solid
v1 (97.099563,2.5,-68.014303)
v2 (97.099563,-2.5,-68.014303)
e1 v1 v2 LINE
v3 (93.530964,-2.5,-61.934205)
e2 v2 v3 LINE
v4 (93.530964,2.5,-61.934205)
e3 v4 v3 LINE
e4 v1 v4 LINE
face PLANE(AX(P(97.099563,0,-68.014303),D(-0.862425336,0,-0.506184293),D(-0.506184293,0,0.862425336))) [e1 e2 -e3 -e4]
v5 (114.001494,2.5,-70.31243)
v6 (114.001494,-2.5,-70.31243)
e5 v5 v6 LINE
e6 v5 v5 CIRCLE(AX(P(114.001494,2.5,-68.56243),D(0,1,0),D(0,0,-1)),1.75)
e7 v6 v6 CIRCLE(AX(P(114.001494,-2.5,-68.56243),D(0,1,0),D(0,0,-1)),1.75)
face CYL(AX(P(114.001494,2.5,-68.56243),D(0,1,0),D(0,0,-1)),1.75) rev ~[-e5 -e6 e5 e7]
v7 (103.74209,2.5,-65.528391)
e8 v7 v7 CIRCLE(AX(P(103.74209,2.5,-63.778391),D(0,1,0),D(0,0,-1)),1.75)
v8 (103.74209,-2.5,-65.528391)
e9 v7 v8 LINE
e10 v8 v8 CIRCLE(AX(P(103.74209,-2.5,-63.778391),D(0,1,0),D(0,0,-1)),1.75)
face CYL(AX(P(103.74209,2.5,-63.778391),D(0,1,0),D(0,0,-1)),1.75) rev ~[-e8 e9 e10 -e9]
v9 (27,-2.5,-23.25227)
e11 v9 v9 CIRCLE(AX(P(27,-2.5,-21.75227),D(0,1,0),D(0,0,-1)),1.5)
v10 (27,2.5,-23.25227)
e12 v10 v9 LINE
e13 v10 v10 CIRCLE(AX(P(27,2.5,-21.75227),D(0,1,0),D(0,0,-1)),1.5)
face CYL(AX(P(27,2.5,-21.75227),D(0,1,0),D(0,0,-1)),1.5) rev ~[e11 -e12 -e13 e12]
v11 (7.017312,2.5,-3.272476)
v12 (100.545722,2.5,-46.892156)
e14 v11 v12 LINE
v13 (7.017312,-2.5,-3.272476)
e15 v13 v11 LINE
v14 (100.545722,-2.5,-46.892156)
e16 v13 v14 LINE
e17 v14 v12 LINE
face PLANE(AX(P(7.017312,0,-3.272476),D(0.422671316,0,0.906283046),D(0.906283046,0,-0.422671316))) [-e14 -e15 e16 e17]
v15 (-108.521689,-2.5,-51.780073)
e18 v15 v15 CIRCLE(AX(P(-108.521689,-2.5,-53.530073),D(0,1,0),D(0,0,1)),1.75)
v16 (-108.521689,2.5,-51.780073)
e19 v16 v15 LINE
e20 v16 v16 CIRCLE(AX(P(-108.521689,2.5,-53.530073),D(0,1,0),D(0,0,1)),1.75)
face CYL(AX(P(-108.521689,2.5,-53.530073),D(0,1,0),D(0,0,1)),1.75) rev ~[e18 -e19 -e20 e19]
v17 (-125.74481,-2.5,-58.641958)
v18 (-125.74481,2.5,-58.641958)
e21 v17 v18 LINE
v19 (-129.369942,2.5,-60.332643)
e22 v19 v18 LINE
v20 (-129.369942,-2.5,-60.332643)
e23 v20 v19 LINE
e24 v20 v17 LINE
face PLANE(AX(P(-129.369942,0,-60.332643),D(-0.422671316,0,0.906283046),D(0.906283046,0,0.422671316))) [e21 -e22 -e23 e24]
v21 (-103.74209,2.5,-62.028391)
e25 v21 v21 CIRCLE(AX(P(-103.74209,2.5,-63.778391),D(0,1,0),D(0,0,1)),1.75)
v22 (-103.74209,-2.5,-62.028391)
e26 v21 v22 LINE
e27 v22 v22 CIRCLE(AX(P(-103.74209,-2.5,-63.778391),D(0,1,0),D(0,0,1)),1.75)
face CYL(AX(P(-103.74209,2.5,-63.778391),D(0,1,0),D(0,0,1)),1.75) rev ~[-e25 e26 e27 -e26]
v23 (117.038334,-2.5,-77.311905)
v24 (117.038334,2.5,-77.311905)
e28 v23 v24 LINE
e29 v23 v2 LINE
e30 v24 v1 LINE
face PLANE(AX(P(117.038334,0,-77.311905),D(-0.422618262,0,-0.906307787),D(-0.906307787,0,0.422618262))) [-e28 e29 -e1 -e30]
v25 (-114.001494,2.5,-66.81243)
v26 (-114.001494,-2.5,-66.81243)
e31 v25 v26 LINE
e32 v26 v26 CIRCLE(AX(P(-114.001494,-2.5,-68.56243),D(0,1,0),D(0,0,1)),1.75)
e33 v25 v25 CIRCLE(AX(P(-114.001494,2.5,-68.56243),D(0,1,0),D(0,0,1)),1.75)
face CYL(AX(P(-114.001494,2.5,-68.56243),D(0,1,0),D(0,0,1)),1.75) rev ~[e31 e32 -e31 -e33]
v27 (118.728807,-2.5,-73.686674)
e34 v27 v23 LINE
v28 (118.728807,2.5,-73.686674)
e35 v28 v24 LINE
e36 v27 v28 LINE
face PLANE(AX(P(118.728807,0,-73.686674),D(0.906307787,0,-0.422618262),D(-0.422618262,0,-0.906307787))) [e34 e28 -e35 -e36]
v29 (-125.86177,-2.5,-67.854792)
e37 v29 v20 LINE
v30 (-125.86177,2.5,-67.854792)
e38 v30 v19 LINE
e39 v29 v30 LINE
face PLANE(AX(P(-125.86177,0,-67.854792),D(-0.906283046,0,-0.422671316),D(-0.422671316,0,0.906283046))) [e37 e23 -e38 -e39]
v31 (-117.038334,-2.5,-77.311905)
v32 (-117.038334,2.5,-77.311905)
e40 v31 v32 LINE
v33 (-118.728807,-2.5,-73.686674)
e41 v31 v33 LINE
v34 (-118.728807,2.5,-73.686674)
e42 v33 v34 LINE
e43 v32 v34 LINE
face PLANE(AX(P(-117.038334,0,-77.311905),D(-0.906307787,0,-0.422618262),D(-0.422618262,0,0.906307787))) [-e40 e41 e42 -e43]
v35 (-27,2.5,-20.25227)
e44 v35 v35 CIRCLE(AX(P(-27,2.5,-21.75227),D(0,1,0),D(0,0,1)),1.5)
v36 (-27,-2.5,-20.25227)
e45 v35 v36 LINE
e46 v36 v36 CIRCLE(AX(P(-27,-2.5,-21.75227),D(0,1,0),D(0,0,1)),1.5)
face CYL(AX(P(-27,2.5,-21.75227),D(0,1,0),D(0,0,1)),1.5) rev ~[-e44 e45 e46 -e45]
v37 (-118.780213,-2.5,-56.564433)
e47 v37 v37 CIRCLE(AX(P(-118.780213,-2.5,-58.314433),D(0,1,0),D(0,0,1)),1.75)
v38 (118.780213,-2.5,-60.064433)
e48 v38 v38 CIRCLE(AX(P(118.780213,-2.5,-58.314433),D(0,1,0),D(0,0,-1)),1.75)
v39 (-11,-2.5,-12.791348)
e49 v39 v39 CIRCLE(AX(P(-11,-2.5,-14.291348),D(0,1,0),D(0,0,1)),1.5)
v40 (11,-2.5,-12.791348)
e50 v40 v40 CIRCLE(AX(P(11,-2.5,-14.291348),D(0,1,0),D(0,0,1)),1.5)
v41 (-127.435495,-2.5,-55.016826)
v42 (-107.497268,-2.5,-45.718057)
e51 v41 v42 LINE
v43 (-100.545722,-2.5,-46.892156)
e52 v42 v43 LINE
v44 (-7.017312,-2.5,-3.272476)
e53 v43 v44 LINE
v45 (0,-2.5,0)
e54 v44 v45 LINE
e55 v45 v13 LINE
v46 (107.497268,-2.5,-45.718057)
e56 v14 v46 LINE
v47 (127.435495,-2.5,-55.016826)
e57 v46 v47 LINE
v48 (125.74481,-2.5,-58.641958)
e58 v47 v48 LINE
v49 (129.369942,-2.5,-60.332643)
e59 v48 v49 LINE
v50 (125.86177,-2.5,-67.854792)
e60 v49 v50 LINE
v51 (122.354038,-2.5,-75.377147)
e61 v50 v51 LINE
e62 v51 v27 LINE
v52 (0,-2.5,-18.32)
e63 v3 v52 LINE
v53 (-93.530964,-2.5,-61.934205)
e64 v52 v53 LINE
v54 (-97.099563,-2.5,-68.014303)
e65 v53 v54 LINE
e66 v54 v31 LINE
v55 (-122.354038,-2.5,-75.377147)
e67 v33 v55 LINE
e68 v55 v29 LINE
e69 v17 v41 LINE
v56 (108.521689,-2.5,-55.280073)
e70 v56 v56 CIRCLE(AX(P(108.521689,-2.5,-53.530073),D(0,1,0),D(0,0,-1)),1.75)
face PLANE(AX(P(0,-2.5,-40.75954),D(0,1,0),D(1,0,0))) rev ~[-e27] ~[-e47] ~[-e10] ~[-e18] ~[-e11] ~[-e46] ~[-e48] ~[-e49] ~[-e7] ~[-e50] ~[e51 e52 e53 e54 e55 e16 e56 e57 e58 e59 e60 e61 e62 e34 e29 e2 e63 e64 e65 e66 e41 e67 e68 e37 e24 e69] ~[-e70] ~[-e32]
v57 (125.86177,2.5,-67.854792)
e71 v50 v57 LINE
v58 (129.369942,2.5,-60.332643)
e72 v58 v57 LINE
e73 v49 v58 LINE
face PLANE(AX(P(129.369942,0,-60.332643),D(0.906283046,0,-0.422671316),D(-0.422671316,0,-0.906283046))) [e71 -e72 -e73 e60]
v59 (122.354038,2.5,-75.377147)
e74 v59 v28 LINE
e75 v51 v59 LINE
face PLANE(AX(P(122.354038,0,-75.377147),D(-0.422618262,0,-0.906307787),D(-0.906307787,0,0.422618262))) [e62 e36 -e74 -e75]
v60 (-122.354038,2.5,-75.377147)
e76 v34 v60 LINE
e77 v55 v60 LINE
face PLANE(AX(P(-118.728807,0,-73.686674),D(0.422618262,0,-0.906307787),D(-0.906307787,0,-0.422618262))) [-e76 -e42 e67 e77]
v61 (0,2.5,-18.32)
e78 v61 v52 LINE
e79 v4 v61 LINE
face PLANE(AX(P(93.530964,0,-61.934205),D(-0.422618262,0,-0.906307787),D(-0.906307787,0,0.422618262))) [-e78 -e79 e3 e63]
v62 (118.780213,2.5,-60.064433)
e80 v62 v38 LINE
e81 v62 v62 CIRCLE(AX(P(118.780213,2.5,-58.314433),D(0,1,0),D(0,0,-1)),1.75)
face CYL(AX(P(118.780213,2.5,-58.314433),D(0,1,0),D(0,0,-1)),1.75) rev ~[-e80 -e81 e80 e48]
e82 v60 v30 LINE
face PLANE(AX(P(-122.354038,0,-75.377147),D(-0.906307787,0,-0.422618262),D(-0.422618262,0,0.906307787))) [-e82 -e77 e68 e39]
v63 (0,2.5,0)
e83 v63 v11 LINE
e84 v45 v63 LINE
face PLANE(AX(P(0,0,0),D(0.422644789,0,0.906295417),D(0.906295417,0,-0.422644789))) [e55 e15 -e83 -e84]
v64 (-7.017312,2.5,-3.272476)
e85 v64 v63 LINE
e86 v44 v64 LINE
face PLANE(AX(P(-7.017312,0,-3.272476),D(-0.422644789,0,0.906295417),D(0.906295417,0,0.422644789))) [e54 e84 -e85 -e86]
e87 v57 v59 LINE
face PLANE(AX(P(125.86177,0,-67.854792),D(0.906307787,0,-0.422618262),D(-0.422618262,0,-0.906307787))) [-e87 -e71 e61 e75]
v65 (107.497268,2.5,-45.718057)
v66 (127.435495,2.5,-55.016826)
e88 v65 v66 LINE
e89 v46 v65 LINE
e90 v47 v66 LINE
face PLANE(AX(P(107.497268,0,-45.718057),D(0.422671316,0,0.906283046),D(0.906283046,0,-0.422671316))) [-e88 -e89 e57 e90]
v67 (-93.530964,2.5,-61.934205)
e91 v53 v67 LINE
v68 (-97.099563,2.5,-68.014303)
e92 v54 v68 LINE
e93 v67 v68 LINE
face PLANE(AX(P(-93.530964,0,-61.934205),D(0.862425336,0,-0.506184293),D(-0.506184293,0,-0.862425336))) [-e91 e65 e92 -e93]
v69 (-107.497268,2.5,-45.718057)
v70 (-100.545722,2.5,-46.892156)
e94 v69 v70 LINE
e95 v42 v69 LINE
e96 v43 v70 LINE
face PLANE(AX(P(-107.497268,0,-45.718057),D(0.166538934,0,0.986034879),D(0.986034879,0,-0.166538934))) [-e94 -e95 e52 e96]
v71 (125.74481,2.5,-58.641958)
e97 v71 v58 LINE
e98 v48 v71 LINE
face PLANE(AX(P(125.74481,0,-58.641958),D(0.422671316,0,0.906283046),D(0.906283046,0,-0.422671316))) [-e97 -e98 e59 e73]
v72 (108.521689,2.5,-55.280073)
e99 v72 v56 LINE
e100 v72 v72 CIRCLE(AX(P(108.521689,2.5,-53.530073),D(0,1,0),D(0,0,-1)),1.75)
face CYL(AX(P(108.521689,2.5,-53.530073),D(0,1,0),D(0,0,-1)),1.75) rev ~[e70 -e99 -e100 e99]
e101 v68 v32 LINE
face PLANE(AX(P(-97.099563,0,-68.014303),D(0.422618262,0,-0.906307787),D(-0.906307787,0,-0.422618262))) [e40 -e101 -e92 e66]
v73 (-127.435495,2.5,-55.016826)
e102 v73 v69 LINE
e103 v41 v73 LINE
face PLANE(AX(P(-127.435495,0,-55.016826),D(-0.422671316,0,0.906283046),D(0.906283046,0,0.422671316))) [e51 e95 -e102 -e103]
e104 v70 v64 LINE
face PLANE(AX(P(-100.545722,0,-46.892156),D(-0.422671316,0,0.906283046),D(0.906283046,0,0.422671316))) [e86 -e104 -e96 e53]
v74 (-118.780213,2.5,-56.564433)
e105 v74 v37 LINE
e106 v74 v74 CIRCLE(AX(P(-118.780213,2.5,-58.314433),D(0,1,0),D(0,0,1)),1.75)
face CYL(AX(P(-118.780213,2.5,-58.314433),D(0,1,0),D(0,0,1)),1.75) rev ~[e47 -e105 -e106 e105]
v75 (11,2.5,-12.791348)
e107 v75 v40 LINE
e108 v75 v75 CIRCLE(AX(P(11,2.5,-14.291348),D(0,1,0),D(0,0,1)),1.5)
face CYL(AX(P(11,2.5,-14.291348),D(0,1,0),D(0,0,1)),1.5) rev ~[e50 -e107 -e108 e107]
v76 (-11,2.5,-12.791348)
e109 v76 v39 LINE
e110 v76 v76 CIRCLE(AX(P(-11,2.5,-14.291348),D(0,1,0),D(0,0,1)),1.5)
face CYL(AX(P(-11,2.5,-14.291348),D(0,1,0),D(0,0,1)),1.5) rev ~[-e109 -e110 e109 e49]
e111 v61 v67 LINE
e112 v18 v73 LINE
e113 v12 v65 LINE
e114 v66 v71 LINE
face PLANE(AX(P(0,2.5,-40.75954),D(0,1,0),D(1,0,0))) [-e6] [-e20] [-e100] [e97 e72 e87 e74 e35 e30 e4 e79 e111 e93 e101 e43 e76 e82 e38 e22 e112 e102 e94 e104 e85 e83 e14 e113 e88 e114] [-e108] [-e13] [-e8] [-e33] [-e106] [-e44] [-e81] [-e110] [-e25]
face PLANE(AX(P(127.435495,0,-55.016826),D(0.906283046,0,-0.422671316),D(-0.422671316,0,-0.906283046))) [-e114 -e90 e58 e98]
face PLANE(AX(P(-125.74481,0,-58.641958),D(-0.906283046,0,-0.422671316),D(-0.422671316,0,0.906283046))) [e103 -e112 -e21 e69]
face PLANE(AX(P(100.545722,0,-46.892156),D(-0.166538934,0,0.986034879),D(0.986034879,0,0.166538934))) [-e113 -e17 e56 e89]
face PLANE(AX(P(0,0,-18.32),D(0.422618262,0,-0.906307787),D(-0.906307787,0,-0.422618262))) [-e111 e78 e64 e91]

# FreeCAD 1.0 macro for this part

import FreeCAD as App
import Part
import Sketcher
from FreeCAD import Vector
Q = App.Units.Quantity

doc = App.newDocument("Part")
body = doc.addObject("PartDesign::Body", "Body")

# Sketch on XZ plane
sketch1 = body.newObject("Sketcher::SketchObject", "Sketch")
sketch1.AttachmentSupport = (doc.getObject("XZ_Plane"), [""])
sketch1.MapMode = "FlatFace"
sketch1.addGeometry(Part.LineSegment(Vector(0, -18.3, 0), Vector(-93.5, -61.9, 0)), False)
sketch1.addGeometry(Part.LineSegment(Vector(-93.5, -61.9, 0), Vector(-97.1, -68, 0)), False)
sketch1.addGeometry(Part.LineSegment(Vector(-97.1, -68, 0), Vector(-117, -77.3, 0)), False)
sketch1.addGeometry(Part.LineSegment(Vector(-117, -77.3, 0), Vector(-118.7, -73.7, 0)), False)
sketch1.addGeometry(Part.LineSegment(Vector(-118.7, -73.7, 0), Vector(-122.4, -75.4, 0)), False)
sketch1.addGeometry(Part.LineSegment(Vector(-122.4, -75.4, 0), Vector(-125.9, -67.9, 0)), False)
sketch1.addGeometry(Part.LineSegment(Vector(-125.9, -67.9, 0), Vector(-129.4, -60.3, 0)), False)
sketch1.addGeometry(Part.LineSegment(Vector(-129.4, -60.3, 0), Vector(-125.7, -58.6, 0)), False)
sketch1.addGeometry(Part.LineSegment(Vector(-125.7, -58.6, 0), Vector(-127.4, -55, 0)), False)
sketch1.addGeometry(Part.LineSegment(Vector(-127.4, -55, 0), Vector(-107.5, -45.7, 0)), False)
sketch1.addGeometry(Part.LineSegment(Vector(-107.5, -45.7, 0), Vector(-100.5, -46.9, 0)), False)
sketch1.addGeometry(Part.LineSegment(Vector(-100.5, -46.9, 0), Vector(-7, -3.3, 0)), False)
sketch1.addGeometry(Part.LineSegment(Vector(-7, -3.3, 0), Vector(0, 0, 0)), False)
sketch1.addGeometry(Part.LineSegment(Vector(0, 0, 0), Vector(7, -3.3, 0)), False)
sketch1.addGeometry(Part.LineSegment(Vector(7, -3.3, 0), Vector(100.5, -46.9, 0)), False)
sketch1.addGeometry(Part.LineSegment(Vector(100.5, -46.9, 0), Vector(107.5, -45.7, 0)), False)
sketch1.addGeometry(Part.LineSegment(Vector(107.5, -45.7, 0), Vector(127.4, -55, 0)), False)
sketch1.addGeometry(Part.LineSegment(Vector(127.4, -55, 0), Vector(125.7, -58.6, 0)), False)
sketch1.addGeometry(Part.LineSegment(Vector(125.7, -58.6, 0), Vector(129.4, -60.3, 0)), False)
sketch1.addGeometry(Part.LineSegment(Vector(129.4, -60.3, 0), Vector(125.9, -67.9, 0)), False)
sketch1.addGeometry(Part.LineSegment(Vector(125.9, -67.9, 0), Vector(122.4, -75.4, 0)), False)
sketch1.addGeometry(Part.LineSegment(Vector(122.4, -75.4, 0), Vector(118.7, -73.7, 0)), False)
sketch1.addGeometry(Part.LineSegment(Vector(118.7, -73.7, 0), Vector(117, -77.3, 0)), False)
sketch1.addGeometry(Part.LineSegment(Vector(117, -77.3, 0), Vector(97.1, -68, 0)), False)
sketch1.addGeometry(Part.LineSegment(Vector(97.1, -68, 0), Vector(93.5, -61.9, 0)), False)
sketch1.addGeometry(Part.LineSegment(Vector(93.5, -61.9, 0), Vector(0, -18.3, 0)), False)
sketch1.addConstraint(Sketcher.Constraint("Coincident", 0, 2, 1, 1))
sketch1.addConstraint(Sketcher.Constraint("Coincident", 1, 2, 2, 1))
sketch1.addConstraint(Sketcher.Constraint("Coincident", 2, 2, 3, 1))
sketch1.addConstraint(Sketcher.Constraint("Coincident", 3, 2, 4, 1))
sketch1.addConstraint(Sketcher.Constraint("Coincident", 4, 2, 5, 1))
sketch1.addConstraint(Sketcher.Constraint("Coincident", 5, 2, 6, 1))
sketch1.addConstraint(Sketcher.Constraint("Coincident", 6, 2, 7, 1))
sketch1.addConstraint(Sketcher.Constraint("Coincident", 7, 2, 8, 1))
sketch1.addConstraint(Sketcher.Constraint("Coincident", 8, 2, 9, 1))
sketch1.addConstraint(Sketcher.Constraint("Coincident", 9, 2, 10, 1))
sketch1.addConstraint(Sketcher.Constraint("Coincident", 10, 2, 11, 1))
sketch1.addConstraint(Sketcher.Constraint("Coincident", 11, 2, 12, 1))
sketch1.addConstraint(Sketcher.Constraint("Coincident", 12, 2, 13, 1))
sketch1.addConstraint(Sketcher.Constraint("Coincident", 13, 2, 14, 1))
sketch1.addConstraint(Sketcher.Constraint("Coincident", 14, 2, 15, 1))
sketch1.addConstraint(Sketcher.Constraint("Coincident", 15, 2, 16, 1))
sketch1.addConstraint(Sketcher.Constraint("Coincident", 16, 2, 17, 1))
sketch1.addConstraint(Sketcher.Constraint("Coincident", 17, 2, 18, 1))
sketch1.addConstraint(Sketcher.Constraint("Coincident", 18, 2, 19, 1))
sketch1.addConstraint(Sketcher.Constraint("Coincident", 19, 2, 20, 1))
sketch1.addConstraint(Sketcher.Constraint("Coincident", 20, 2, 21, 1))
sketch1.addConstraint(Sketcher.Constraint("Coincident", 21, 2, 22, 1))
sketch1.addConstraint(Sketcher.Constraint("Coincident", 22, 2, 23, 1))
sketch1.addConstraint(Sketcher.Constraint("Coincident", 23, 2, 24, 1))
sketch1.addConstraint(Sketcher.Constraint("Coincident", 24, 2, 25, 1))
sketch1.addConstraint(Sketcher.Constraint("Coincident", 25, 2, 0, 1))
sketch1.addConstraint(Sketcher.Constraint("Coincident", 12, 2, -1, 1))
sketch1.addConstraint(Sketcher.Constraint("Symmetric", 11, 2, 13, 2, -2))
sketch1.addConstraint(Sketcher.Constraint("Symmetric", 10, 2, 14, 2, -2))
sketch1.addConstraint(Sketcher.Constraint("Symmetric", 9, 2, 15, 2, -2))
sketch1.addConstraint(Sketcher.Constraint("Symmetric", 8, 2, 16, 2, -2))
sketch1.addConstraint(Sketcher.Constraint("Symmetric", 7, 2, 17, 2, -2))
sketch1.addConstraint(Sketcher.Constraint("Symmetric", 6, 2, 18, 2, -2))
sketch1.addConstraint(Sketcher.Constraint("Symmetric", 5, 2, 19, 2, -2))
sketch1.addConstraint(Sketcher.Constraint("Symmetric", 4, 2, 20, 2, -2))
sketch1.addConstraint(Sketcher.Constraint("Symmetric", 3, 2, 21, 2, -2))
sketch1.addConstraint(Sketcher.Constraint("Symmetric", 2, 2, 22, 2, -2))
sketch1.addConstraint(Sketcher.Constraint("Symmetric", 1, 2, 23, 2, -2))
sketch1.addConstraint(Sketcher.Constraint("Symmetric", 0, 2, 24, 2, -2))
sketch1.addConstraint(Sketcher.Constraint("PointOnObject", 25, 2, -2))
sketch1.addConstraint(Sketcher.Constraint("Parallel", 0, 2))
sketch1.addConstraint(Sketcher.Constraint("Perpendicular", 2, 3))
sketch1.addConstraint(Sketcher.Constraint("Perpendicular", 3, 4))
sketch1.addConstraint(Sketcher.Constraint("Perpendicular", 4, 5))
sketch1.addConstraint(Sketcher.Constraint("Perpendicular", 6, 7))
sketch1.addConstraint(Sketcher.Constraint("Perpendicular", 7, 8))
sketch1.addConstraint(Sketcher.Constraint("Perpendicular", 8, 9))
sketch1.addConstraint(Sketcher.Constraint("Parallel", 9, 11))
sketch1.addConstraint(Sketcher.Constraint("Equal", 3, 4))
sketch1.addConstraint(Sketcher.Constraint("Equal", 5, 6))
sketch1.addConstraint(Sketcher.Constraint("Equal", 4, 7))
sketch1.addConstraint(Sketcher.Constraint("Equal", 7, 8))
sketch1.addConstraint(Sketcher.Constraint("Equal", 2, 9))
sketch1.addConstraint(Sketcher.Constraint("Equal", 1, 10))
sketch1.addConstraint(Sketcher.Constraint("Equal", 0, 11))
sketch1.addConstraint(Sketcher.Constraint("Angle", 0, Q("-155 deg")))
sketch1.addConstraint(Sketcher.Constraint("Distance", 2, Q("22 mm")))
sketch1.addConstraint(Sketcher.Constraint("Distance", 3, Q("4 mm")))
sketch1.addConstraint(Sketcher.Constraint("Distance", 0, Q("103.2 mm")))
sketch1.addConstraint(Sketcher.Constraint("Distance", 5, Q("8.3 mm")))
sketch1.addConstraint(Sketcher.Constraint("Angle", 1, Q("-120.41 deg")))
sketch1.addConstraint(Sketcher.Constraint("Distance", 1, Q("7.05 mm")))
sketch1.addConstraint(Sketcher.Constraint("DistanceY", 25, 2, -1, 1, Q("18.32 mm")))
sketch1.addConstraint(Sketcher.Constraint("DistanceY", 7, 2, 9, 2, Q("12.923901 mm")))
sketch1.addConstraint(Sketcher.Constraint("DistanceY", 10, 2, 9, 2, Q("1.174099 mm")))
pad1 = body.newObject("PartDesign::Pad", "Pad")
pad1.Profile = sketch1
pad1.Length = 5
pad1.Midplane = True

# Sketch on XZ plane
sketch2 = body.newObject("Sketcher::SketchObject", "Sketch001")
sketch2.AttachmentSupport = (doc.getObject("XZ_Plane"), [""])
sketch2.MapMode = "FlatFace"
sketch2.AttachmentOffset = App.Placement(Vector(0, 0, -2.5), App.Rotation())
sketch2.addGeometry(Part.Circle(Vector(-11, -14.3, 0), Vector(0, 0, 1), 1.5), False)
sketch2.addGeometry(Part.Circle(Vector(11, -14.3, 0), Vector(0, 0, 1), 1.5), False)
sketch2.addGeometry(Part.Circle(Vector(-27, -21.8, 0), Vector(0, 0, 1), 1.5), False)
sketch2.addGeometry(Part.Circle(Vector(27, -21.8, 0), Vector(0, 0, 1), 1.5), False)
sketch2.addConstraint(Sketcher.Constraint("Equal", 0, 1))
sketch2.addConstraint(Sketcher.Constraint("Equal", 1, 2))
sketch2.addConstraint(Sketcher.Constraint("Equal", 2, 3))
sketch2.addConstraint(Sketcher.Constraint("Symmetric", 0, 3, 1, 3, -2))
sketch2.addConstraint(Sketcher.Constraint("Symmetric", 2, 3, 3, 3, -2))
sketch2.addConstraint(Sketcher.Constraint("Diameter", 0, Q("3 mm")))
sketch2.addConstraint(Sketcher.Constraint("DistanceX", 0, 3, -1, 1, Q("11 mm")))
sketch2.addConstraint(Sketcher.Constraint("DistanceX", 2, 3, -1, 1, Q("27 mm")))
sketch2.addConstraint(Sketcher.Constraint("DistanceY", 2, 3, -1, 1, Q("21.75227 mm")))
sketch2.addConstraint(Sketcher.Constraint("DistanceY", 0, 3, -1, 1, Q("14.291348 mm")))
pocket1 = body.newObject("PartDesign::Pocket", "Pocket")
pocket1.Profile = sketch2
pocket1.Type = "ThroughAll"
pocket1.Reversed = True

# Sketch on XZ plane
sketch3 = body.newObject("Sketcher::SketchObject", "Sketch002")
sketch3.AttachmentSupport = (doc.getObject("XZ_Plane"), [""])
sketch3.MapMode = "FlatFace"
sketch3.AttachmentOffset = App.Placement(Vector(0, 0, -2.5), App.Rotation())
sketch3.addGeometry(Part.Circle(Vector(-114, -68.6, 0), Vector(0, 0, 1), 1.8), False)
sketch3.addGeometry(Part.Circle(Vector(-118.8, -58.3, 0), Vector(0, 0, 1), 1.8), False)
sketch3.addGeometry(Part.Circle(Vector(-103.7, -63.8, 0), Vector(0, 0, 1), 1.8), False)
sketch3.addGeometry(Part.Circle(Vector(-108.5, -53.5, 0), Vector(0, 0, 1), 1.8), False)
sketch3.addGeometry(Part.Circle(Vector(103.7, -63.8, 0), Vector(0, 0, 1), 1.8), False)
sketch3.addGeometry(Part.Circle(Vector(108.5, -53.5, 0), Vector(0, 0, 1), 1.8), False)
sketch3.addGeometry(Part.Circle(Vector(118.8, -58.3, 0), Vector(0, 0, 1), 1.8), False)
sketch3.addGeometry(Part.Circle(Vector(114, -68.6, 0), Vector(0, 0, 1), 1.8), False)
sketch3.addConstraint(Sketcher.Constraint("Equal", 0, 1))
sketch3.addConstraint(Sketcher.Constraint("Equal", 1, 2))
sketch3.addConstraint(Sketcher.Constraint("Equal", 2, 3))
sketch3.addConstraint(Sketcher.Constraint("Equal", 3, 4))
sketch3.addConstraint(Sketcher.Constraint("Equal", 4, 5))
sketch3.addConstraint(Sketcher.Constraint("Equal", 5, 6))
sketch3.addConstraint(Sketcher.Constraint("Equal", 6, 7))
sketch3.addConstraint(Sketcher.Constraint("Symmetric", 2, 3, 4, 3, -2))
sketch3.addConstraint(Sketcher.Constraint("Symmetric", 3, 3, 5, 3, -2))
sketch3.addConstraint(Sketcher.Constraint("Symmetric", 1, 3, 6, 3, -2))
sketch3.addConstraint(Sketcher.Constraint("Symmetric", 0, 3, 7, 3, -2))
sketch3.addConstraint(Sketcher.Constraint("Diameter", 0, Q("3.5 mm")))
sketch3.addConstraint(Sketcher.Constraint("DistanceX", 3, 3, 2, 3, Q("4.779599 mm")))
sketch3.addConstraint(Sketcher.Constraint("DistanceY", 0, 3, -1, 1, Q("68.56243 mm")))
sketch3.addConstraint(Sketcher.Constraint("DistanceX", 2, 3, -1, 1, Q("103.74209 mm")))
sketch3.addConstraint(Sketcher.Constraint("DistanceY", 2, 3, -1, 1, Q("63.778391 mm")))
sketch3.addConstraint(Sketcher.Constraint("DistanceX", 1, 3, 0, 3, Q("4.778719 mm")))
sketch3.addConstraint(Sketcher.Constraint("DistanceY", 2, 3, 1, 3, Q("5.463958 mm")))
sketch3.addConstraint(Sketcher.Constraint("DistanceY", 1, 3, 3, 3, Q("4.78436 mm")))
sketch3.addConstraint(Sketcher.Constraint("DistanceX", 0, 3, -1, 1, Q("114.001494 mm")))
pocket2 = body.newObject("PartDesign::Pocket", "Pocket001")
pocket2.Profile = sketch3
pocket2.Type = "ThroughAll"
pocket2.Reversed = True

doc.recompute()
